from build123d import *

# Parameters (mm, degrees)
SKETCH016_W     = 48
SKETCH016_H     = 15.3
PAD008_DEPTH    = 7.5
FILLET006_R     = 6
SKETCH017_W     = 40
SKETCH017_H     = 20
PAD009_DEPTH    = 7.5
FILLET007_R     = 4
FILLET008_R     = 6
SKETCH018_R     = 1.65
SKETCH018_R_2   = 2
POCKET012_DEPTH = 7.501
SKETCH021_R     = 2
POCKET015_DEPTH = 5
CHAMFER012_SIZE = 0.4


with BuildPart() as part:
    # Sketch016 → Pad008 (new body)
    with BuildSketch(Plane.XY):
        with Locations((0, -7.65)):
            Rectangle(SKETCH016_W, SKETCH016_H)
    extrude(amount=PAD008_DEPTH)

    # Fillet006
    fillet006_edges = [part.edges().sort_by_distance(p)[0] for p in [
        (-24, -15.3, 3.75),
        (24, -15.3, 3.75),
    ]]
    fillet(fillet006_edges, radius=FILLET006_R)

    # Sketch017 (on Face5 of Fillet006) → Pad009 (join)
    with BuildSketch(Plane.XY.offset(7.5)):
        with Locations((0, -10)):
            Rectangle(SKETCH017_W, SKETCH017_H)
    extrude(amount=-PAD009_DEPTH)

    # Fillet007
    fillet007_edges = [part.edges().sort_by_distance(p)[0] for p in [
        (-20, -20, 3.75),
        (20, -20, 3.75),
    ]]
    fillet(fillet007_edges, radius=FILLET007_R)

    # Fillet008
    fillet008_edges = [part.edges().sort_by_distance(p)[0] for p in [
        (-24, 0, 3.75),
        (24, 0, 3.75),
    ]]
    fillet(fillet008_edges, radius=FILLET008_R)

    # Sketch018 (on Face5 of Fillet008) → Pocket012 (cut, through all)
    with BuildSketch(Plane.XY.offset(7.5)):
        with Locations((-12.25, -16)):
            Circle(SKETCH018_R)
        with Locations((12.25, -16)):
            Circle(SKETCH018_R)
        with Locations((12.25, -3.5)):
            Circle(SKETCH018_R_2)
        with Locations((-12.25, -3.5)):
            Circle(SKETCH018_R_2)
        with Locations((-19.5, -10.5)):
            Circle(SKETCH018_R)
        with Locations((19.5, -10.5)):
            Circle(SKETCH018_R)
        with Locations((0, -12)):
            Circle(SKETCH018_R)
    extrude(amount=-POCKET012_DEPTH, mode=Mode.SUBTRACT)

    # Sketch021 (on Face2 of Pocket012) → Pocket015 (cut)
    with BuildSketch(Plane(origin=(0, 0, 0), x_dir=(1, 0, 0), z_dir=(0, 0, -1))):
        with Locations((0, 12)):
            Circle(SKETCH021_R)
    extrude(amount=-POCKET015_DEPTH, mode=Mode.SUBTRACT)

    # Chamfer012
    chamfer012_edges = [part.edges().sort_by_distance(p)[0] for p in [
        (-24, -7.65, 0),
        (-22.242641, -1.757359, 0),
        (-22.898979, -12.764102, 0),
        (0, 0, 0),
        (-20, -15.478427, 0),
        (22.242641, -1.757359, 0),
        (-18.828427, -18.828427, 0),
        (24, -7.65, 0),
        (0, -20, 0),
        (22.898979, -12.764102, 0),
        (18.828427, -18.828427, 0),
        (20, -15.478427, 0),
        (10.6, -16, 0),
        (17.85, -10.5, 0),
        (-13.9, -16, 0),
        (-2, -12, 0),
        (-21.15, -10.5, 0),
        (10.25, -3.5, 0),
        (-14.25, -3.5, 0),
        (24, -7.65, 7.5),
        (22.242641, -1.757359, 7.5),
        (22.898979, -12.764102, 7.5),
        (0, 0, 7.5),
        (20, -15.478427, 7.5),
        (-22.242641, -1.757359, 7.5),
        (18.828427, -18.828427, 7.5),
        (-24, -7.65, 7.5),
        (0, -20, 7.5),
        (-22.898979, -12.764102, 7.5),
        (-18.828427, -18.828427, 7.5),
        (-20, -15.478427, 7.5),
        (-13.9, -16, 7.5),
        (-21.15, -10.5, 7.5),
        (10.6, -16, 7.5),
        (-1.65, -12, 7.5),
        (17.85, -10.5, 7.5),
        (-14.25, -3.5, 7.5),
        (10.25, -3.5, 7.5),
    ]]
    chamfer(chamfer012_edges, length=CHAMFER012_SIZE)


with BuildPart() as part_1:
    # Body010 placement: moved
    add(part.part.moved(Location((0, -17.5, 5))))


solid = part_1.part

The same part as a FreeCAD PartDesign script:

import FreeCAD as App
import Part
import Sketcher

V = App.Vector
Q = App.Units.Quantity


def edges_at(feature, points):
    """Names of the edges that pass closest to the given points."""
    edges = feature.Shape.Edges
    near = lambda p: min(range(len(edges)), key=lambda i: edges[i].distToShape(Part.Vertex(*p))[0])
    return sorted({f"Edge{near(p) + 1}" for p in points})

doc = App.newDocument("Part")
params = doc.addObject("Spreadsheet::Sheet", "Params")
for row, (alias, value) in enumerate([
    ("sketch1_width", "48 mm"),
    ("sketch1_height", "15.3 mm"),
    ("pad1_length", "7.5 mm"),
    ("fillet_radius", "6 mm"),
    ("sketch2_width", "40 mm"),
    ("sketch2_height", "20 mm"),
    ("pad2_length", "7.5 mm"),
    ("fillet2_radius", "4 mm"),
    ("fillet3_radius", "6 mm"),
    ("sketch3_diameter", "4 mm"),
    ("sketch3_diameter2", "3.3 mm"),
    ("sketch4_diameter", "4 mm"),
    ("pocket2_length", "5 mm"),
    ("chamfer_size", "0.4 mm"),
], start=1):
    params.set(f"A{row}", alias)
    params.set(f"B{row}", "=" + value)
    params.setAlias(f"B{row}", alias)

body = doc.addObject("PartDesign::Body", "Body")

sketch1 = doc.addObject("Sketcher::SketchObject", "Sketch")
body.addObject(sketch1)
sketch1.AttachmentSupport = (doc.XY_Plane, [""])
sketch1.MapMode = "FlatFace"
sketch1.addGeometry([
    Part.LineSegment(V(-24, 0, 0), V(-24, -15, 0)),
    Part.LineSegment(V(-24, -15, 0), V(24, -15, 0)),
    Part.LineSegment(V(24, -15, 0), V(24, 0, 0)),
    Part.LineSegment(V(24, 0, 0), V(-24, 0, 0)),
], False)
sketch1.addConstraint([
    Sketcher.Constraint("Coincident", 0, 2, 1, 1),
    Sketcher.Constraint("Coincident", 1, 2, 2, 1),
    Sketcher.Constraint("Coincident", 2, 2, 3, 1),
    Sketcher.Constraint("Coincident", 3, 2, 0, 1),
    Sketcher.Constraint("Vertical", 0),
    Sketcher.Constraint("Horizontal", 1),
    Sketcher.Constraint("Vertical", 2),
    Sketcher.Constraint("Horizontal", 3),
    Sketcher.Constraint("Symmetric", 2, 2, 3, 2, -1, 1),
    Sketcher.Constraint("DistanceX", 1, 1, 1, 2, Q("48 mm")),
    Sketcher.Constraint("DistanceY", 0, 2, 0, 1, Q("15.3 mm")),
])
sketch1.setExpression("Constraints[9]", "Params.sketch1_width")
sketch1.setExpression("Constraints[10]", "Params.sketch1_height")
pad1 = doc.addObject("PartDesign::Pad", "Pad")
body.addObject(pad1)
pad1.Profile = sketch1
pad1.setExpression("Length", "Params.pad1_length")
doc.recompute()

fillet = doc.addObject("PartDesign::Fillet", "Fillet")
body.addObject(fillet)
fillet.Base = (pad1, edges_at(pad1, [(-24, -15.3, 3.75), (24, -15.3, 3.75)]))
fillet.setExpression("Radius", "Params.fillet_radius")

sketch2 = doc.addObject("Sketcher::SketchObject", "Sketch001")
body.addObject(sketch2)
sketch2.AttachmentSupport = (doc.XY_Plane, [""])
sketch2.MapMode = "FlatFace"
sketch2.AttachmentOffset = App.Placement(V(0, 0, 7.5), App.Rotation())
sketch2.addGeometry([
    Part.LineSegment(V(-20, 0, 0), V(-20, -20, 0)),
    Part.LineSegment(V(-20, -20, 0), V(20, -20, 0)),
    Part.LineSegment(V(20, -20, 0), V(20, 0, 0)),
    Part.LineSegment(V(20, 0, 0), V(-20, 0, 0)),
], False)
sketch2.addConstraint([
    Sketcher.Constraint("Coincident", 0, 2, 1, 1),
    Sketcher.Constraint("Coincident", 1, 2, 2, 1),
    Sketcher.Constraint("Coincident", 2, 2, 3, 1),
    Sketcher.Constraint("Coincident", 3, 2, 0, 1),
    Sketcher.Constraint("Vertical", 0),
    Sketcher.Constraint("Horizontal", 1),
    Sketcher.Constraint("Vertical", 2),
    Sketcher.Constraint("Horizontal", 3),
    Sketcher.Constraint("Symmetric", 2, 2, 3, 2, -1, 1),
    Sketcher.Constraint("DistanceX", 1, 1, 1, 2, Q("40 mm")),
    Sketcher.Constraint("DistanceY", 0, 2, 0, 1, Q("20 mm")),
])
sketch2.setExpression("Constraints[9]", "Params.sketch2_width")
sketch2.setExpression("Constraints[10]", "Params.sketch2_height")
pad2 = doc.addObject("PartDesign::Pad", "Pad001")
body.addObject(pad2)
pad2.Profile = sketch2
pad2.setExpression("Length", "Params.pad2_length")
pad2.Reversed = True
doc.recompute()

fillet2 = doc.addObject("PartDesign::Fillet", "Fillet001")
body.addObject(fillet2)
fillet2.Base = (pad2, edges_at(pad2, [(-20, -20, 3.75), (20, -20, 3.75)]))
fillet2.setExpression("Radius", "Params.fillet2_radius")
doc.recompute()

fillet3 = doc.addObject("PartDesign::Fillet", "Fillet002")
body.addObject(fillet3)
fillet3.Base = (fillet2, edges_at(fillet2, [(-24, 0, 3.75), (24, 0, 3.75)]))
fillet3.setExpression("Radius", "Params.fillet3_radius")

sketch3 = doc.addObject("Sketcher::SketchObject", "Sketch002")
body.addObject(sketch3)
sketch3.AttachmentSupport = (doc.XY_Plane, [""])
sketch3.MapMode = "FlatFace"
sketch3.AttachmentOffset = App.Placement(V(0, 0, 7.5), App.Rotation())
sketch3.addGeometry([
    Part.Circle(V(-12.2, -16, 0), V(0, 0, 1), 1.6),
    Part.Circle(V(12.2, -16, 0), V(0, 0, 1), 1.6),
    Part.Circle(V(12.2, -3.5, 0), V(0, 0, 1), 2),
    Part.Circle(V(-12.2, -3.5, 0), V(0, 0, 1), 2),
    Part.Circle(V(-19.5, -10.5, 0), V(0, 0, 1), 1.6),
    Part.Circle(V(19.5, -10.5, 0), V(0, 0, 1), 1.6),
    Part.Circle(V(0, -12, 0), V(0, 0, 1), 1.6),
], False)
sketch3.addConstraint([
    Sketcher.Constraint("Equal", 0, 1),
    Sketcher.Constraint("Equal", 2, 3),
    Sketcher.Constraint("Equal", 1, 4),
    Sketcher.Constraint("Equal", 4, 5),
    Sketcher.Constraint("Equal", 5, 6),
    Sketcher.Constraint("Symmetric", 0, 3, 1, 3, -2),
    Sketcher.Constraint("Symmetric", 2, 3, 3, 3, -2),
    Sketcher.Constraint("Symmetric", 4, 3, 5, 3, -2),
    Sketcher.Constraint("PointOnObject", 6, 3, -2),
    Sketcher.Constraint("Vertical", 1, 3, 2, 3),
    Sketcher.Constraint("Diameter", 2, Q("4 mm")),
    Sketcher.Constraint("Diameter", 0, Q("3.3 mm")),
    Sketcher.Constraint("DistanceY", 0, 3, -1, 1, Q("16 mm")),
    Sketcher.Constraint("DistanceY", 6, 3, -1, 1, Q("12 mm")),
    Sketcher.Constraint("DistanceY", 4, 3, 3, 3, Q("7 mm")),
    Sketcher.Constraint("DistanceX", 4, 3, 5, 3, Q("39 mm")),
    Sketcher.Constraint("DistanceY", 2, 3, -1, 1, Q("3.5 mm")),
    Sketcher.Constraint("DistanceX", 0, 3, 1, 3, Q("24.5 mm")),
])
sketch3.setExpression("Constraints[10]", "Params.sketch3_diameter")
sketch3.setExpression("Constraints[11]", "Params.sketch3_diameter2")
pocket1 = doc.addObject("PartDesign::Pocket", "Pocket")
body.addObject(pocket1)
pocket1.Profile = sketch3
pocket1.Type = "ThroughAll"

sketch4 = doc.addObject("Sketcher::SketchObject", "Sketch003")
body.addObject(sketch4)
sketch4.AttachmentSupport = (doc.XY_Plane, [""])
sketch4.MapMode = "FlatFace"
sketch4.addGeometry(Part.Circle(V(0, -12, 0), V(0, 0, 1), 2), False)
sketch4.addConstraint([
    Sketcher.Constraint("PointOnObject", 0, 3, -2),
    Sketcher.Constraint("Diameter", 0, Q("4 mm")),
    Sketcher.Constraint("DistanceY", 0, 3, -1, 1, Q("12 mm")),
])
sketch4.setExpression("Constraints[1]", "Params.sketch4_diameter")
pocket2 = doc.addObject("PartDesign::Pocket", "Pocket001")
body.addObject(pocket2)
pocket2.Profile = sketch4
pocket2.setExpression("Length", "Params.pocket2_length")
pocket2.Reversed = True
doc.recompute()

chamfer = doc.addObject("PartDesign::Chamfer", "Chamfer")
body.addObject(chamfer)
chamfer.Base = (pocket2, edges_at(pocket2, [
    (-24, -7.65, 0),
    (-22.243, -1.757, 0),
    (-22.899, -12.764, 0),
    (0, 0, 0),
    (-20, -15.478, 0),
    (22.243, -1.757, 0),
    (-18.828, -18.828, 0),
    (24, -7.65, 0),
    (0, -20, 0),
    (22.899, -12.764, 0),
    (18.828, -18.828, 0),
    (20, -15.478, 0),
    (10.6, -16, 0),
    (17.85, -10.5, 0),
    (-13.9, -16, 0),
    (-2, -12, 0),
    (-21.15, -10.5, 0),
    (10.25, -3.5, 0),
    (-14.25, -3.5, 0),
    (24, -7.65, 7.5),
    (22.243, -1.757, 7.5),
    (22.899, -12.764, 7.5),
    (0, 0, 7.5),
    (20, -15.478, 7.5),
    (-22.243, -1.757, 7.5),
    (18.828, -18.828, 7.5),
    (-24, -7.65, 7.5),
    (0, -20, 7.5),
    (-22.899, -12.764, 7.5),
    (-18.828, -18.828, 7.5),
    (-20, -15.478, 7.5),
    (-13.9, -16, 7.5),
    (-21.15, -10.5, 7.5),
    (10.6, -16, 7.5),
    (-1.65, -12, 7.5),
    (17.85, -10.5, 7.5),
    (-14.25, -3.5, 7.5),
    (10.25, -3.5, 7.5),
]))
chamfer.setExpression("Size", "Params.chamfer_size")
body2 = doc.addObject("PartDesign::Body", "Body001")
doc.recompute()

body.Placement = App.Placement(V(0, -17.5, 5), App.Rotation(V(0, 0, 1), 0))
boolean = doc.addObject("PartDesign::Boolean", "Boolean")
body2.addObject(boolean)
boolean.Type = "Fuse"
boolean.addObjects([body])

doc.recompute()
